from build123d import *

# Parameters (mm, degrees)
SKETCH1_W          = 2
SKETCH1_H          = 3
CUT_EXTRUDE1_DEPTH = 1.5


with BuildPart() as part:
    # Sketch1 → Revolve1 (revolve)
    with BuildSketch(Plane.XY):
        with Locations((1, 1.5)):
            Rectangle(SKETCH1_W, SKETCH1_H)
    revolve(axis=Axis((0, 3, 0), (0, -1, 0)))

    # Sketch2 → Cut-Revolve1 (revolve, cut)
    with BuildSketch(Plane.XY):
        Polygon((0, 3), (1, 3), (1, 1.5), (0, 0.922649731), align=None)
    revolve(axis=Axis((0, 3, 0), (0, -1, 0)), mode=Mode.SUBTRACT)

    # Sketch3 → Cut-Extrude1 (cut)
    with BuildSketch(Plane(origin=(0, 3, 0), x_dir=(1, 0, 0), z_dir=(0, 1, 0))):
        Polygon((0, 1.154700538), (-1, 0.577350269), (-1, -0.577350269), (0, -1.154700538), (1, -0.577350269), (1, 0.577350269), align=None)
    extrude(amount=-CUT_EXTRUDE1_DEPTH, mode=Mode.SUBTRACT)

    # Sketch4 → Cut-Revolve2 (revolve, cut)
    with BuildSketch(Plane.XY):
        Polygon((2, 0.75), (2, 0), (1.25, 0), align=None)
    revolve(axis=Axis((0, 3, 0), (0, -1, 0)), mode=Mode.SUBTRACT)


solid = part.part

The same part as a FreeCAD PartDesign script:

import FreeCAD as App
import Part
import Sketcher
Q = App.Units.Quantity

doc = App.newDocument("Part")
body = doc.addObject("PartDesign::Body", "Body")

sketch1 = body.newObject("Sketcher::SketchObject", "Sketch")
sketch1.AttachmentSupport = (doc.getObject("XY_Plane"), [""])
sketch1.MapMode = "FlatFace"
sketch1.addGeometry([
    Part.LineSegment(App.Vector(0, 3, 0), App.Vector(0, 0, 0)),
    Part.LineSegment(App.Vector(0, 0, 0), App.Vector(2, 0, 0)),
    Part.LineSegment(App.Vector(2, 0, 0), App.Vector(2, 3, 0)),
    Part.LineSegment(App.Vector(2, 3, 0), App.Vector(0, 3, 0)),
], False)
sketch1.addConstraint([
    Sketcher.Constraint("Coincident", 0, 2, 1, 1),
    Sketcher.Constraint("Coincident", 1, 2, 2, 1),
    Sketcher.Constraint("Coincident", 2, 2, 3, 1),
    Sketcher.Constraint("Coincident", 3, 2, 0, 1),
    Sketcher.Constraint("Vertical", 0),
    Sketcher.Constraint("Horizontal", 1),
    Sketcher.Constraint("Vertical", 2),
    Sketcher.Constraint("Horizontal", 3),
    Sketcher.Constraint("Coincident", 0, 2, -1, 1),
    Sketcher.Constraint("DistanceX", 1, 1, 1, 2, 2.0),
    Sketcher.Constraint("DistanceY", 0, 2, 0, 1, 3.0),
])
revolution = body.newObject("PartDesign::Revolution", "Revolution")
revolution.Profile = sketch1
revolution.ReferenceAxis = (sketch1, ["V_Axis"])
revolution.Angle = 360

sketch2 = body.newObject("Sketcher::SketchObject", "Sketch001")
sketch2.AttachmentSupport = (doc.getObject("XY_Plane"), [""])
sketch2.MapMode = "FlatFace"
sketch2.addGeometry([
    Part.LineSegment(App.Vector(1, 3, 0), App.Vector(0, 3, 0)),
    Part.LineSegment(App.Vector(0, 3, 0), App.Vector(0, 0.9, 0)),
    Part.LineSegment(App.Vector(0, 0.9, 0), App.Vector(1, 1.5, 0)),
    Part.LineSegment(App.Vector(1, 1.5, 0), App.Vector(1, 3, 0)),
], False)
sketch2.addConstraint([
    Sketcher.Constraint("Coincident", 0, 2, 1, 1),
    Sketcher.Constraint("Coincident", 1, 2, 2, 1),
    Sketcher.Constraint("Coincident", 2, 2, 3, 1),
    Sketcher.Constraint("Coincident", 3, 2, 0, 1),
    Sketcher.Constraint("Horizontal", 0),
    Sketcher.Constraint("Vertical", 1),
    Sketcher.Constraint("Vertical", 3),
    Sketcher.Constraint("PointOnObject", 0, 2, -2),
    Sketcher.Constraint("DistanceX", 0, 2, 0, 1, 1.0),
    Sketcher.Constraint("Angle", 2, Q("30 deg")),
    Sketcher.Constraint("DistanceY", 3, 1, 3, 2, 1.5),
    Sketcher.Constraint("DistanceY", -1, 1, 0, 2, 3.0),
])
groove = body.newObject("PartDesign::Groove", "Groove")
groove.Profile = sketch2
groove.ReferenceAxis = (sketch2, ["V_Axis"])
groove.Angle = 360

sketch3 = body.newObject("Sketcher::SketchObject", "Sketch002")
sketch3.AttachmentSupport = (doc.getObject("XZ_Plane"), [""])
sketch3.MapMode = "FlatFace"
sketch3.AttachmentOffset = App.Placement(App.Vector(0, 0, -3), App.Rotation())
sketch3.addGeometry([
    Part.LineSegment(App.Vector(0, -1.2, 0), App.Vector(-1, -0.6, 0)),
    Part.LineSegment(App.Vector(-1, -0.6, 0), App.Vector(-1, 0.6, 0)),
    Part.LineSegment(App.Vector(-1, 0.6, 0), App.Vector(0, 1.2, 0)),
    Part.LineSegment(App.Vector(0, 1.2, 0), App.Vector(1, 0.6, 0)),
    Part.LineSegment(App.Vector(1, 0.6, 0), App.Vector(1, -0.6, 0)),
    Part.LineSegment(App.Vector(1, -0.6, 0), App.Vector(0, -1.2, 0)),
], False)
sketch3.addConstraint([
    Sketcher.Constraint("Coincident", 0, 2, 1, 1),
    Sketcher.Constraint("Coincident", 1, 2, 2, 1),
    Sketcher.Constraint("Coincident", 2, 2, 3, 1),
    Sketcher.Constraint("Coincident", 3, 2, 4, 1),
    Sketcher.Constraint("Coincident", 4, 2, 5, 1),
    Sketcher.Constraint("Coincident", 5, 2, 0, 1),
    Sketcher.Constraint("Vertical", 1),
    Sketcher.Constraint("Vertical", 4),
    Sketcher.Constraint("Symmetric", 0, 2, 3, 2, -1, 1),
    Sketcher.Constraint("Symmetric", 2, 2, 5, 2, -1, 1),
    Sketcher.Constraint("PointOnObject", 2, 2, -2),
    Sketcher.Constraint("Parallel", 2, 5),
    Sketcher.Constraint("Horizontal", 1, 2, 3, 2),
    Sketcher.Constraint("Angle", 0, Q("150 deg")),
    Sketcher.Constraint("DistanceX", 0, 2, -1, 1, 1.0),
    Sketcher.Constraint("DistanceY", 1, 1, 1, 2, 1.154701),
])
pocket1 = body.newObject("PartDesign::Pocket", "Pocket")
pocket1.Profile = sketch3
pocket1.Length = 1.5
pocket1.Reversed = True

sketch4 = body.newObject("Sketcher::SketchObject", "Sketch003")
sketch4.AttachmentSupport = (doc.getObject("XY_Plane"), [""])
sketch4.MapMode = "FlatFace"
sketch4.addGeometry([
    Part.LineSegment(App.Vector(2, 0, 0), App.Vector(2, 0.8, 0)),
    Part.LineSegment(App.Vector(2, 0.8, 0), App.Vector(1.2, 0, 0)),
    Part.LineSegment(App.Vector(1.2, 0, 0), App.Vector(2, 0, 0)),
], False)
sketch4.addConstraint([
    Sketcher.Constraint("Coincident", 0, 2, 1, 1),
    Sketcher.Constraint("Coincident", 1, 2, 2, 1),
    Sketcher.Constraint("Coincident", 2, 2, 0, 1),
    Sketcher.Constraint("Vertical", 0),
    Sketcher.Constraint("Horizontal", 2),
    Sketcher.Constraint("PointOnObject", 1, 2, -1),
    Sketcher.Constraint("Equal", 2, 0),
    Sketcher.Constraint("DistanceX", -1, 1, 0, 2, 2.0),
    Sketcher.Constraint("DistanceX", 2, 1, 2, 2, 0.75),
])
groove2 = body.newObject("PartDesign::Groove", "Groove001")
groove2.Profile = sketch4
groove2.ReferenceAxis = (sketch4, ["V_Axis"])
groove2.Angle = 360

doc.recompute()
